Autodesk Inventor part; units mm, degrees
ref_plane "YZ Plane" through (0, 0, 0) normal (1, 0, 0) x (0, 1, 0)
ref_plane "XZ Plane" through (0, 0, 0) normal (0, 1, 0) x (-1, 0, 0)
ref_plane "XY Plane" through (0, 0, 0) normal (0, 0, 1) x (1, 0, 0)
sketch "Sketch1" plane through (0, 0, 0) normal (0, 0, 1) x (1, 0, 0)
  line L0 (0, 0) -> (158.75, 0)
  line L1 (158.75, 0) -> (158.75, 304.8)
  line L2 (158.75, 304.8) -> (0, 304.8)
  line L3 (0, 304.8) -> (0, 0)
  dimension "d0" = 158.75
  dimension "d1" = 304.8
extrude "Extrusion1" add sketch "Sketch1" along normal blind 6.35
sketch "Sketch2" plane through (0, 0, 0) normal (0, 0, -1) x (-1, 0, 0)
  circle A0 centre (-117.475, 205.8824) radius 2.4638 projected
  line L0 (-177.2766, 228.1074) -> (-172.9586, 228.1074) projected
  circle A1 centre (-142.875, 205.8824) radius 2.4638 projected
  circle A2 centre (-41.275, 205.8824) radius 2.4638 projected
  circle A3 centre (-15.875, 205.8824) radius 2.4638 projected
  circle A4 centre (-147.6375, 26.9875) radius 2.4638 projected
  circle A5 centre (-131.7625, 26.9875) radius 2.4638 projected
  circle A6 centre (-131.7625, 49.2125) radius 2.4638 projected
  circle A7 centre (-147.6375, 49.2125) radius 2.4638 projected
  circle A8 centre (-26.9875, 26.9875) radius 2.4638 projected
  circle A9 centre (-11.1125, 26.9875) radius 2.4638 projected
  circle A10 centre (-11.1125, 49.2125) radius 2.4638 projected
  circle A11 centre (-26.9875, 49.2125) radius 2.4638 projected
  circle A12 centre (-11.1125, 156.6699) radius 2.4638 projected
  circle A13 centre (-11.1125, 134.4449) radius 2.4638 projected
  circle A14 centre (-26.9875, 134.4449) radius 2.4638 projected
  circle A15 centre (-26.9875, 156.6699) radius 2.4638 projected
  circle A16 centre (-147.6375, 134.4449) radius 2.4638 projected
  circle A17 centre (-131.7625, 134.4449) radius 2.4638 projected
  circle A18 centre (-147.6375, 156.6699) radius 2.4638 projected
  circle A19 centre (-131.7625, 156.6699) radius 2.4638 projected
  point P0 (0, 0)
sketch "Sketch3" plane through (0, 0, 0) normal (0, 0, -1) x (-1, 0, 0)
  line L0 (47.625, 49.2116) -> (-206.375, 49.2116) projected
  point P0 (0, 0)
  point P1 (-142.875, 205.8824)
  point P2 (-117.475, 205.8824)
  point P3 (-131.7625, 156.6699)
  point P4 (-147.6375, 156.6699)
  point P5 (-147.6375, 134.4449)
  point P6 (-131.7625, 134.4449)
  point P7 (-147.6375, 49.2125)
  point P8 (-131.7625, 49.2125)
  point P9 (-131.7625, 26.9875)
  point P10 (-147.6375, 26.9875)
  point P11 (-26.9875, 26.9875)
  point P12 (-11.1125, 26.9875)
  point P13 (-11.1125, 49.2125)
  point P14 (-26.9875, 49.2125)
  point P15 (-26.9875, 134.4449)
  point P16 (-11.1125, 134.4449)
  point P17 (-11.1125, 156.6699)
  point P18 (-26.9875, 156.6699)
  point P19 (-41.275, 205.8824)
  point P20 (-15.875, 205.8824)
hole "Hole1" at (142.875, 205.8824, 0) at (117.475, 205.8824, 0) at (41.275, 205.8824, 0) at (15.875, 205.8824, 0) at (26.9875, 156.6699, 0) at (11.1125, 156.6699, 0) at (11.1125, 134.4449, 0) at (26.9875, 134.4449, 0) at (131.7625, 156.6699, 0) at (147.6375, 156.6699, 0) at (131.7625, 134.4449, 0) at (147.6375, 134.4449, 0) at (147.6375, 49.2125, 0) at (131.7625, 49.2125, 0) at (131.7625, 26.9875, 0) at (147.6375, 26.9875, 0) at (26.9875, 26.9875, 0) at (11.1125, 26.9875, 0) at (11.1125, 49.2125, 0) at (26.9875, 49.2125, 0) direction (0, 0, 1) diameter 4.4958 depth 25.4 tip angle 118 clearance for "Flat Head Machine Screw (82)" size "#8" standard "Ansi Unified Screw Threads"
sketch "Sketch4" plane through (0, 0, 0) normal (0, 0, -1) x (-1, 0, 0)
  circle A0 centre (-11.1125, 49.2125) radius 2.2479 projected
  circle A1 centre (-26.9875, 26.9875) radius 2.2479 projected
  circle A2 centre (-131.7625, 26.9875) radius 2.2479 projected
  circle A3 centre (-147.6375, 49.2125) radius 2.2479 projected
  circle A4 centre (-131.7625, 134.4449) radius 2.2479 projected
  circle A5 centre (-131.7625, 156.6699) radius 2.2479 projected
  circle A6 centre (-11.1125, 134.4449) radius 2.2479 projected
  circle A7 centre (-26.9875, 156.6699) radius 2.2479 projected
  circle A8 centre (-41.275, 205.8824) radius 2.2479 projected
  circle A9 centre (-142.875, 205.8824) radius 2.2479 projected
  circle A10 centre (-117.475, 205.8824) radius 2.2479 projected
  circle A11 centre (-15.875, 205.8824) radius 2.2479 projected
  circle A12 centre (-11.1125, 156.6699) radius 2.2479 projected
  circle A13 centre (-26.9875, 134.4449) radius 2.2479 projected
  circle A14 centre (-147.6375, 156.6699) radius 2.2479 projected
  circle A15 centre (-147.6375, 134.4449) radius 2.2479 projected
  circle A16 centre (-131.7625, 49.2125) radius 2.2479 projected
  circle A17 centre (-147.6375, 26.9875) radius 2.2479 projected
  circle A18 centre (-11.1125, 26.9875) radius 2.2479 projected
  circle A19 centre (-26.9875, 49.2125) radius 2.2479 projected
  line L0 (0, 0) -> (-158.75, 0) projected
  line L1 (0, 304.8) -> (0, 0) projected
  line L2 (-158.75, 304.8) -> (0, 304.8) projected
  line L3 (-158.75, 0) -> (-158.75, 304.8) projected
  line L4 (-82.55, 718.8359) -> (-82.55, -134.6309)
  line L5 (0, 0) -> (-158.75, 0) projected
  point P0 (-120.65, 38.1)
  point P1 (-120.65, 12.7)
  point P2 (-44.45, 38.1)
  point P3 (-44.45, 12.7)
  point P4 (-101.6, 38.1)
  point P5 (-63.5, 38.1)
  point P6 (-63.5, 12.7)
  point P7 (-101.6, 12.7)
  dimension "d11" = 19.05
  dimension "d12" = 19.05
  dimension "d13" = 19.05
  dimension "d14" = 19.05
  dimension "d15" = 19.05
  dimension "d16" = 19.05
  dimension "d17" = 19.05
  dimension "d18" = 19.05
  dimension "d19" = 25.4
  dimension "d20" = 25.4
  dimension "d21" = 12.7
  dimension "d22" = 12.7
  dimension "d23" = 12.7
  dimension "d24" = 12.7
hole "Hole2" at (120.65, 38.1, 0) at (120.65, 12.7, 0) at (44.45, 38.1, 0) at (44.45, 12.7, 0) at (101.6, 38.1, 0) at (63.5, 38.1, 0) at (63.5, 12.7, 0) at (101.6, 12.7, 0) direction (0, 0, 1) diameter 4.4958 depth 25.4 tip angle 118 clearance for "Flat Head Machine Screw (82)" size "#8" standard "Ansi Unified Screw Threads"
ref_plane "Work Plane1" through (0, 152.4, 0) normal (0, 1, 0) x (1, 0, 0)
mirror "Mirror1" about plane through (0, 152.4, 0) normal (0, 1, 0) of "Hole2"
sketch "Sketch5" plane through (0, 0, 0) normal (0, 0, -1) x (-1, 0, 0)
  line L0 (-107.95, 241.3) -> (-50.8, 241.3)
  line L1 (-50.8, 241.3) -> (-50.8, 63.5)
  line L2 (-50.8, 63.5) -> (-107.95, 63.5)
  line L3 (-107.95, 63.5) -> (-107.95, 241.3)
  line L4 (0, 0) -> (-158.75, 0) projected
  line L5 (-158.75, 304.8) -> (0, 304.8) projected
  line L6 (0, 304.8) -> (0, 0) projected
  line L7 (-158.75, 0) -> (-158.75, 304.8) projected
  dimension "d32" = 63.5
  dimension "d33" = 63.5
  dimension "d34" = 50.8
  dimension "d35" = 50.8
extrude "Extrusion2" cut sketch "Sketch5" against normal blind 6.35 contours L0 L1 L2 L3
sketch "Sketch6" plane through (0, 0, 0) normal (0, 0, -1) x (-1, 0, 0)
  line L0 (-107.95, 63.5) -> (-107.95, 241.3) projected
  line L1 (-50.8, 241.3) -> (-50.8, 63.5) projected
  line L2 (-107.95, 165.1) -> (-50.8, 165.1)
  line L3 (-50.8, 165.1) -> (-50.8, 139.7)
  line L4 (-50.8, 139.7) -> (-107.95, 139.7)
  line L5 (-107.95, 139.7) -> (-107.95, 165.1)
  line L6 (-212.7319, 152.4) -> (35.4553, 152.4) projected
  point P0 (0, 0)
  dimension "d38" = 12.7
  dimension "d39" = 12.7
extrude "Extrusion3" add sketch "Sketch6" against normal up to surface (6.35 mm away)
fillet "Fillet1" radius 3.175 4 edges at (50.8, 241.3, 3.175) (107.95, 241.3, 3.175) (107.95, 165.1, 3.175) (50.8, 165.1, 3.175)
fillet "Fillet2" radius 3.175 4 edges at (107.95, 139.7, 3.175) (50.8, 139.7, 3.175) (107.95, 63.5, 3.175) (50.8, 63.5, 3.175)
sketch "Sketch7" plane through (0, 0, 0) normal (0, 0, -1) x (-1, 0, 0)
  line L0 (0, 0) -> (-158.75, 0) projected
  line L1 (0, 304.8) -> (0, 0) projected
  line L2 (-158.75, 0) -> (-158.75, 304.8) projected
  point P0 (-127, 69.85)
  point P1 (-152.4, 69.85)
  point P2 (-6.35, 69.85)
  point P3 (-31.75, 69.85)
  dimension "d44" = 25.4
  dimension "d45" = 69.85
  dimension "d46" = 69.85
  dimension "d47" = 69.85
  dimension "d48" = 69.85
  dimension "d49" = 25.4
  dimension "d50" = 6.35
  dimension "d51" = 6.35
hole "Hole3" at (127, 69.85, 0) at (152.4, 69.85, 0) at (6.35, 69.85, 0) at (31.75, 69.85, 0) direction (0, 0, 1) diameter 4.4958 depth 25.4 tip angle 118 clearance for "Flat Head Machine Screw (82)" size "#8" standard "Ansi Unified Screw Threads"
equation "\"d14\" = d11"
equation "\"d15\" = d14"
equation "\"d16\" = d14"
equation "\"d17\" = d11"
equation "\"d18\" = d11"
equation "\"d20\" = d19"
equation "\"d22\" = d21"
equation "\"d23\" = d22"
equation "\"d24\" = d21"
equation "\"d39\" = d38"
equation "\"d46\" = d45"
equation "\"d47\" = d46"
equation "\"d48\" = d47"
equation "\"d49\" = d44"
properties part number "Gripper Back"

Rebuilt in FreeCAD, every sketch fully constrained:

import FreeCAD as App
import Part
import Sketcher
from FreeCAD import Vector
Q = App.Units.Quantity


def edges_at(feature, points):
    """Names of the edges that pass closest to the given points."""
    edges = feature.Shape.Edges
    near = lambda p: min(range(len(edges)), key=lambda i: edges[i].distToShape(Part.Vertex(*p))[0])
    return sorted({f"Edge{near(p) + 1}" for p in points})

doc = App.newDocument("Part")
body = doc.addObject("PartDesign::Body", "Body")

# Sketch on XY plane
sketch1 = body.newObject("Sketcher::SketchObject", "Sketch")
sketch1.AttachmentSupport = (doc.getObject("XY_Plane"), [""])
sketch1.MapMode = "FlatFace"
sketch1.addGeometry([
    Part.LineSegment(Vector(0, 305, 0), Vector(0, 0, 0)),
    Part.LineSegment(Vector(0, 0, 0), Vector(159, 0, 0)),
    Part.LineSegment(Vector(159, 0, 0), Vector(159, 305, 0)),
    Part.LineSegment(Vector(159, 305, 0), Vector(0, 305, 0)),
], False)
sketch1.addConstraint([
    Sketcher.Constraint("Coincident", 0, 2, 1, 1),
    Sketcher.Constraint("Coincident", 1, 2, 2, 1),
    Sketcher.Constraint("Coincident", 2, 2, 3, 1),
    Sketcher.Constraint("Coincident", 3, 2, 0, 1),
    Sketcher.Constraint("Vertical", 0),
    Sketcher.Constraint("Horizontal", 1),
    Sketcher.Constraint("Vertical", 2),
    Sketcher.Constraint("Horizontal", 3),
    Sketcher.Constraint("Coincident", 0, 2, -1, 1),
    Sketcher.Constraint("DistanceY", 0, 2, 0, 1, Q("12 in")),
    Sketcher.Constraint("DistanceX", 1, 1, 1, 2, Q("6.25 in")),
])
pad1 = body.newObject("PartDesign::Pad", "Pad")
pad1.Profile = sketch1
pad1.Length = Q("0.25 in")

# Sketch on XY plane
sketch2 = body.newObject("Sketcher::SketchObject", "Sketch001")
sketch2.AttachmentSupport = (doc.getObject("XY_Plane"), [""])
sketch2.MapMode = "FlatFace"
sketch2.addGeometry([
    Part.Circle(Vector(142.9, 205.9, 0), Vector(0, 0, 1), 2.2),  # 0
    Part.Circle(Vector(117.5, 205.9, 0), Vector(0, 0, 1), 2.2),  # 1
    Part.Circle(Vector(41.3, 205.9, 0), Vector(0, 0, 1), 2.2),  # 2
    Part.Circle(Vector(15.9, 205.9, 0), Vector(0, 0, 1), 2.2),  # 3
    Part.Circle(Vector(27, 156.7, 0), Vector(0, 0, 1), 2.2),  # 4
    Part.Circle(Vector(11.1, 156.7, 0), Vector(0, 0, 1), 2.2),  # 5
    Part.Circle(Vector(11.1, 134.4, 0), Vector(0, 0, 1), 2.2),  # 6
    Part.Circle(Vector(27, 134.4, 0), Vector(0, 0, 1), 2.2),  # 7
    Part.Circle(Vector(131.8, 156.7, 0), Vector(0, 0, 1), 2.2),  # 8
    Part.Circle(Vector(147.6, 156.7, 0), Vector(0, 0, 1), 2.2),  # 9
    Part.Circle(Vector(131.8, 134.4, 0), Vector(0, 0, 1), 2.2),  # 10
    Part.Circle(Vector(147.6, 134.4, 0), Vector(0, 0, 1), 2.2),  # 11
    Part.Circle(Vector(147.6, 49.2, 0), Vector(0, 0, 1), 2.2),  # 12
    Part.Circle(Vector(131.8, 49.2, 0), Vector(0, 0, 1), 2.2),  # 13
    Part.Circle(Vector(131.8, 27, 0), Vector(0, 0, 1), 2.2),  # 14
    Part.Circle(Vector(147.6, 27, 0), Vector(0, 0, 1), 2.2),  # 15
    Part.Circle(Vector(27, 27, 0), Vector(0, 0, 1), 2.2),  # 16
    Part.Circle(Vector(11.1, 27, 0), Vector(0, 0, 1), 2.2),  # 17
    Part.Circle(Vector(11.1, 49.2, 0), Vector(0, 0, 1), 2.2),  # 18
    Part.Circle(Vector(27, 49.2, 0), Vector(0, 0, 1), 2.2),  # 19
], False)
sketch2.addConstraint([
    Sketcher.Constraint("Equal", 0, 1),
    Sketcher.Constraint("Equal", 1, 2),
    Sketcher.Constraint("Equal", 2, 3),
    Sketcher.Constraint("Equal", 3, 4),
    Sketcher.Constraint("Equal", 4, 5),
    Sketcher.Constraint("Equal", 5, 6),
    Sketcher.Constraint("Equal", 6, 7),
    Sketcher.Constraint("Equal", 7, 8),
    Sketcher.Constraint("Equal", 8, 9),
    Sketcher.Constraint("Equal", 9, 10),
    Sketcher.Constraint("Equal", 10, 11),
    Sketcher.Constraint("Equal", 11, 12),
    Sketcher.Constraint("Equal", 12, 13),
    Sketcher.Constraint("Equal", 13, 14),
    Sketcher.Constraint("Equal", 14, 15),
    Sketcher.Constraint("Equal", 15, 16),
    Sketcher.Constraint("Equal", 16, 17),
    Sketcher.Constraint("Equal", 17, 18),
    Sketcher.Constraint("Equal", 18, 19),
    Sketcher.Constraint("Horizontal", 0, 3, 1, 3),
    Sketcher.Constraint("Horizontal", 1, 3, 2, 3),
    Sketcher.Constraint("Horizontal", 2, 3, 3, 3),
    Sketcher.Constraint("Horizontal", 4, 3, 5, 3),
    Sketcher.Constraint("Horizontal", 6, 3, 7, 3),
    Sketcher.Constraint("Horizontal", 5, 3, 8, 3),
    Sketcher.Constraint("Horizontal", 8, 3, 9, 3),
    Sketcher.Constraint("Horizontal", 7, 3, 10, 3),
    Sketcher.Constraint("Horizontal", 10, 3, 11, 3),
    Sketcher.Constraint("Horizontal", 12, 3, 13, 3),
    Sketcher.Constraint("Horizontal", 14, 3, 15, 3),
    Sketcher.Constraint("Horizontal", 15, 3, 16, 3),
    Sketcher.Constraint("Horizontal", 16, 3, 17, 3),
    Sketcher.Constraint("Horizontal", 13, 3, 18, 3),
    Sketcher.Constraint("Horizontal", 18, 3, 19, 3),
    Sketcher.Constraint("Vertical", 5, 3, 6, 3),
    Sketcher.Constraint("Vertical", 4, 3, 7, 3),
    Sketcher.Constraint("Vertical", 8, 3, 10, 3),
    Sketcher.Constraint("Vertical", 9, 3, 11, 3),
    Sketcher.Constraint("Vertical", 11, 3, 12, 3),
    Sketcher.Constraint("Vertical", 10, 3, 13, 3),
    Sketcher.Constraint("Vertical", 13, 3, 14, 3),
    Sketcher.Constraint("Vertical", 12, 3, 15, 3),
    Sketcher.Constraint("Vertical", 7, 3, 16, 3),
    Sketcher.Constraint("Vertical", 6, 3, 17, 3),
    Sketcher.Constraint("Vertical", 17, 3, 18, 3),
    Sketcher.Constraint("Vertical", 16, 3, 19, 3),
    Sketcher.Constraint("Diameter", 0, Q("0.177 in")),
    Sketcher.Constraint("DistanceX", 1, 3, 0, 3, Q("1 in")),
    Sketcher.Constraint("DistanceX", 2, 3, 1, 3, Q("3 in")),
    Sketcher.Constraint("DistanceX", 3, 3, 2, 3, Q("1 in")),
    Sketcher.Constraint("DistanceX", 4, 3, 9, 3, Q("4.75 in")),
    Sketcher.Constraint("DistanceX", 17, 3, 14, 3, Q("4.75 in")),
    Sketcher.Constraint("DistanceX", -1, 1, 0, 3, Q("5.625 in")),
    Sketcher.Constraint("DistanceX", -1, 1, 4, 3, Q("1.0625 in")),
    Sketcher.Constraint("DistanceX", -1, 1, 5, 3, Q("0.4375 in")),
    Sketcher.Constraint("DistanceY", -1, 1, 12, 3, Q("1.9375 in")),
    Sketcher.Constraint("DistanceY", -1, 1, 14, 3, Q("1.0625 in")),
    Sketcher.Constraint("DistanceY", 4, 3, 3, 3, Q("1.9375 in")),
    Sketcher.Constraint("DistanceY", 6, 3, 5, 3, Q("0.875 in")),
    Sketcher.Constraint("DistanceY", -1, 1, 0, 3, Q("8.1056 in")),
])
doc.recompute()
hole = body.newObject("PartDesign::Hole", "Hole")
hole.Profile = sketch2
hole.ThreadType = "None"
hole.Diameter = Q("0.177 in")
hole.DepthType = "Dimension"
hole.Depth = Q("1 in")
hole.DrillPoint = "Angled"
hole.DrillPointAngle = 118
hole.Reversed = True

# Sketch on XY plane
sketch3 = body.newObject("Sketcher::SketchObject", "Sketch002")
sketch3.AttachmentSupport = (doc.getObject("XY_Plane"), [""])
sketch3.MapMode = "FlatFace"
sketch3.addGeometry([
    Part.Circle(Vector(120.7, 38.1, 0), Vector(0, 0, 1), 2.2),  # 0
    Part.Circle(Vector(120.7, 12.7, 0), Vector(0, 0, 1), 2.2),  # 1
    Part.Circle(Vector(44.5, 38.1, 0), Vector(0, 0, 1), 2.2),  # 2
    Part.Circle(Vector(44.5, 12.7, 0), Vector(0, 0, 1), 2.2),  # 3
    Part.Circle(Vector(101.6, 38.1, 0), Vector(0, 0, 1), 2.2),  # 4
    Part.Circle(Vector(63.5, 38.1, 0), Vector(0, 0, 1), 2.2),  # 5
    Part.Circle(Vector(63.5, 12.7, 0), Vector(0, 0, 1), 2.2),  # 6
    Part.Circle(Vector(101.6, 12.7, 0), Vector(0, 0, 1), 2.2),  # 7
], False)
sketch3.addConstraint([
    Sketcher.Constraint("Equal", 0, 1),
    Sketcher.Constraint("Equal", 1, 2),
    Sketcher.Constraint("Equal", 2, 3),
    Sketcher.Constraint("Equal", 3, 4),
    Sketcher.Constraint("Equal", 4, 5),
    Sketcher.Constraint("Equal", 5, 6),
    Sketcher.Constraint("Equal", 6, 7),
    Sketcher.Constraint("Horizontal", 0, 3, 2, 3),
    Sketcher.Constraint("Horizontal", 1, 3, 3, 3),
    Sketcher.Constraint("Horizontal", 2, 3, 4, 3),
    Sketcher.Constraint("Horizontal", 4, 3, 5, 3),
    Sketcher.Constraint("Horizontal", 3, 3, 6, 3),
    Sketcher.Constraint("Horizontal", 6, 3, 7, 3),
    Sketcher.Constraint("Vertical", 0, 3, 1, 3),
    Sketcher.Constraint("Vertical", 2, 3, 3, 3),
    Sketcher.Constraint("Vertical", 5, 3, 6, 3),
    Sketcher.Constraint("Vertical", 4, 3, 7, 3),
    Sketcher.Constraint("Diameter", 0, Q("0.177 in")),
    Sketcher.Constraint("DistanceX", -1, 1, 4, 3, Q("4 in")),
    Sketcher.Constraint("DistanceY", 1, 3, 0, 3, Q("1 in")),
    Sketcher.Constraint("DistanceX", 2, 3, 0, 3, Q("3 in")),
    Sketcher.Constraint("DistanceY", -1, 1, 0, 3, Q("1.5 in")),
    Sketcher.Constraint("DistanceX", -1, 1, 5, 3, Q("2.5 in")),
    Sketcher.Constraint("DistanceX", -1, 1, 0, 3, Q("4.75 in")),
])
doc.recompute()
hole2 = body.newObject("PartDesign::Hole", "Hole001")
hole2.Profile = sketch3
hole2.ThreadType = "None"
hole2.Diameter = Q("0.177 in")
hole2.DepthType = "Dimension"
hole2.Depth = Q("1 in")
hole2.DrillPoint = "Angled"
hole2.DrillPointAngle = 118
hole2.Reversed = True
doc.recompute()

datumplane = body.newObject("PartDesign::Plane", "DatumPlane")
datumplane.AttachmentSupport = (doc.getObject("XZ_Plane"), [""])
datumplane.MapMode = "FlatFace"
datumplane.AttachmentOffset = App.Placement(Vector(0, 0, -6 * 25.4), App.Rotation())
mirrored = body.newObject("PartDesign::Mirrored", "Mirrored")
mirrored.Originals = [hole2]
mirrored.MirrorPlane = (datumplane, [""])
body.Tip = mirrored

# Sketch on XY plane
sketch4 = body.newObject("Sketcher::SketchObject", "Sketch003")
sketch4.AttachmentSupport = (doc.getObject("XY_Plane"), [""])
sketch4.MapMode = "FlatFace"
sketch4.addGeometry([
    Part.LineSegment(Vector(51, 241, 0), Vector(108, 241, 0)),
    Part.LineSegment(Vector(108, 241, 0), Vector(108, 64, 0)),
    Part.LineSegment(Vector(108, 64, 0), Vector(51, 64, 0)),
    Part.LineSegment(Vector(51, 64, 0), Vector(51, 241, 0)),
], False)
sketch4.addConstraint([
    Sketcher.Constraint("Coincident", 0, 2, 1, 1),
    Sketcher.Constraint("Coincident", 1, 2, 2, 1),
    Sketcher.Constraint("Coincident", 2, 2, 3, 1),
    Sketcher.Constraint("Coincident", 3, 2, 0, 1),
    Sketcher.Constraint("Horizontal", 0),
    Sketcher.Constraint("Vertical", 1),
    Sketcher.Constraint("Horizontal", 2),
    Sketcher.Constraint("Vertical", 3),
    Sketcher.Constraint("DistanceX", -1, 1, 2, 2, Q("2 in")),
    Sketcher.Constraint("DistanceY", -1, 1, 1, 2, Q("2.5 in")),
    Sketcher.Constraint("DistanceY", 1, 2, 1, 1, Q("7 in")),
    Sketcher.Constraint("DistanceX", 0, 1, 0, 2, Q("2.25 in")),
])
pocket1 = body.newObject("PartDesign::Pocket", "Pocket")
pocket1.Profile = sketch4
pocket1.Length = Q("0.25 in")
pocket1.Reversed = True

# Sketch on XY plane
sketch5 = body.newObject("Sketcher::SketchObject", "Sketch004")
sketch5.AttachmentSupport = (doc.getObject("XY_Plane"), [""])
sketch5.MapMode = "FlatFace"
sketch5.addGeometry([
    Part.LineSegment(Vector(108, 140, 0), Vector(51, 140, 0)),
    Part.LineSegment(Vector(51, 140, 0), Vector(51, 165, 0)),
    Part.LineSegment(Vector(51, 165, 0), Vector(108, 165, 0)),
    Part.LineSegment(Vector(108, 165, 0), Vector(108, 140, 0)),
], False)
sketch5.addConstraint([
    Sketcher.Constraint("Coincident", 0, 2, 1, 1),
    Sketcher.Constraint("Coincident", 1, 2, 2, 1),
    Sketcher.Constraint("Coincident", 2, 2, 3, 1),
    Sketcher.Constraint("Coincident", 3, 2, 0, 1),
    Sketcher.Constraint("Horizontal", 0),
    Sketcher.Constraint("Vertical", 1),
    Sketcher.Constraint("Horizontal", 2),
    Sketcher.Constraint("Vertical", 3),
    Sketcher.Constraint("DistanceY", 1, 1, 1, 2, Q("1 in")),
    Sketcher.Constraint("DistanceX", -1, 1, 0, 2, Q("2 in")),
    Sketcher.Constraint("DistanceX", 0, 2, 0, 1, Q("2.25 in")),
    Sketcher.Constraint("DistanceY", -1, 1, 0, 2, Q("5.5 in")),
])
pad2 = body.newObject("PartDesign::Pad", "Pad001")
pad2.Profile = sketch5
pad2.Length = Q("0.25 in")
doc.recompute()

fillet = body.newObject("PartDesign::Fillet", "Fillet")
fillet.Base = (pad2, edges_at(pad2, [
    (50.8, 241.3, 3.175),
    (107.95, 241.3, 3.175),
    (107.95, 165.1, 3.175),
    (50.8, 165.1, 3.175),
]))
fillet.Radius = Q("0.125 in")
doc.recompute()

fillet2 = body.newObject("PartDesign::Fillet", "Fillet001")
fillet2.Base = (fillet, edges_at(fillet, [
    (107.95, 139.7, 3.175),
    (50.8, 139.7, 3.175),
    (107.95, 63.5, 3.175),
    (50.8, 63.5, 3.175),
]))
fillet2.Radius = Q("0.125 in")

# Sketch on XY plane
sketch6 = body.newObject("Sketcher::SketchObject", "Sketch005")
sketch6.AttachmentSupport = (doc.getObject("XY_Plane"), [""])
sketch6.MapMode = "FlatFace"
sketch6.addGeometry([
    Part.Circle(Vector(127, 69.8, 0), Vector(0, 0, 1), 2.2),
    Part.Circle(Vector(152.4, 69.8, 0), Vector(0, 0, 1), 2.2),
    Part.Circle(Vector(6.3, 69.8, 0), Vector(0, 0, 1), 2.2),
    Part.Circle(Vector(31.8, 69.8, 0), Vector(0, 0, 1), 2.2),
], False)
sketch6.addConstraint([
    Sketcher.Constraint("Equal", 0, 1),
    Sketcher.Constraint("Equal", 1, 2),
    Sketcher.Constraint("Equal", 2, 3),
    Sketcher.Constraint("Horizontal", 0, 3, 1, 3),
    Sketcher.Constraint("Horizontal", 1, 3, 2, 3),
    Sketcher.Constraint("Horizontal", 2, 3, 3, 3),
    Sketcher.Constraint("Diameter", 0, Q("0.177 in")),
    Sketcher.Constraint("DistanceX", -1, 1, 0, 3, Q("5 in")),
    Sketcher.Constraint("DistanceX", -1, 1, 1, 3, Q("6 in")),
    Sketcher.Constraint("DistanceX", 2, 3, 3, 3, Q("1 in")),
    Sketcher.Constraint("DistanceY", -1, 1, 0, 3, Q("2.75 in")),
    Sketcher.Constraint("DistanceX", -1, 1, 2, 3, Q("0.25 in")),
])
doc.recompute()
hole3 = body.newObject("PartDesign::Hole", "Hole002")
hole3.Profile = sketch6
hole3.ThreadType = "None"
hole3.Diameter = Q("0.177 in")
hole3.DepthType = "Dimension"
hole3.Depth = Q("1 in")
hole3.DrillPoint = "Angled"
hole3.DrillPointAngle = 118
hole3.Reversed = True

doc.recompute()
